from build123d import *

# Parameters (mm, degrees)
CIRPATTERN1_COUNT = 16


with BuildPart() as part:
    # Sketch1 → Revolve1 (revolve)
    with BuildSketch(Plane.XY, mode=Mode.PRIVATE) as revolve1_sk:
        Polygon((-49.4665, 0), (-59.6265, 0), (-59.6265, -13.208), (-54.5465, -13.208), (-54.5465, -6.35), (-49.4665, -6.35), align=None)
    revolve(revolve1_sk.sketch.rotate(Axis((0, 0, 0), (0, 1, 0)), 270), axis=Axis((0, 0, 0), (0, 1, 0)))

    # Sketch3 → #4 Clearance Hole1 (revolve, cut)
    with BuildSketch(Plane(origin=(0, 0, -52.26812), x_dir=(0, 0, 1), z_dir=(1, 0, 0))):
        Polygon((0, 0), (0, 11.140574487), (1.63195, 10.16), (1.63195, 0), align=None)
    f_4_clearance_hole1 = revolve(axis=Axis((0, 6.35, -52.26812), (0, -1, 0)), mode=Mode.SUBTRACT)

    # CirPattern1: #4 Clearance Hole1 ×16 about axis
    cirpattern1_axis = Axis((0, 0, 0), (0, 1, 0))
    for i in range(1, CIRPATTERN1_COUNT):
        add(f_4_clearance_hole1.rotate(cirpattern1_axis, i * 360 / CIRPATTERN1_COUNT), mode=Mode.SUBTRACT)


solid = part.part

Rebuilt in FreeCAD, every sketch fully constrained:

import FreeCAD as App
import Part
import Sketcher

V = App.Vector
Q = App.Units.Quantity

doc = App.newDocument("Part")
body = doc.addObject("PartDesign::Body", "Body")

# Sketch on XY plane
sketch1 = body.newObject("Sketcher::SketchObject", "Sketch")
sketch1.AttachmentSupport = (doc.getObject("XY_Plane"), [""])
sketch1.MapMode = "FlatFace"
sketch1.addGeometry([
    Part.LineSegment(V(-49, 0, 0), V(-60, 0, 0)),  # 0
    Part.LineSegment(V(-60, 0, 0), V(-60, -13, 0)),  # 1
    Part.LineSegment(V(-60, -13, 0), V(-55, -13, 0)),  # 2
    Part.LineSegment(V(-55, -13, 0), V(-55, -6, 0)),  # 3
    Part.LineSegment(V(-55, -6, 0), V(-49, -6, 0)),  # 4
    Part.LineSegment(V(-49, -6, 0), V(-49, 0, 0)),  # 5
], False)
sketch1.addConstraint([
    Sketcher.Constraint("Coincident", 0, 2, 1, 1),
    Sketcher.Constraint("Coincident", 1, 2, 2, 1),
    Sketcher.Constraint("Coincident", 2, 2, 3, 1),
    Sketcher.Constraint("Coincident", 3, 2, 4, 1),
    Sketcher.Constraint("Coincident", 4, 2, 5, 1),
    Sketcher.Constraint("Coincident", 5, 2, 0, 1),
    Sketcher.Constraint("Horizontal", 0),
    Sketcher.Constraint("Vertical", 1),
    Sketcher.Constraint("Horizontal", 2),
    Sketcher.Constraint("Vertical", 3),
    Sketcher.Constraint("Horizontal", 4),
    Sketcher.Constraint("Vertical", 5),
    Sketcher.Constraint("PointOnObject", 0, 2, -1),
    Sketcher.Constraint("Equal", 2, 4),
    Sketcher.Constraint("DistanceX", 0, 2, 0, 1, Q("0.4 in")),
    Sketcher.Constraint("DistanceY", 1, 2, 1, 1, Q("0.52 in")),
    Sketcher.Constraint("DistanceY", 3, 1, 3, 2, Q("0.27 in")),
    Sketcher.Constraint("DistanceX", 0, 2, -1, 1, Q("2.3475 in")),
])
revolution = body.newObject("PartDesign::Revolution", "Revolution")
revolution.Profile = sketch1
revolution.ReferenceAxis = (sketch1, ["V_Axis"])
revolution.Angle = 360

# Sketch on YZ plane
sketch2 = body.newObject("Sketcher::SketchObject", "Sketch001")
sketch2.AttachmentSupport = (doc.getObject("YZ_Plane"), [""])
sketch2.MapMode = "FlatFace"
sketch2.addGeometry([
    Part.LineSegment(V(-11.1, -52.3, 0), V(0, -52.3, 0)),
    Part.LineSegment(V(0, -52.3, 0), V(0, -50.6, 0)),
    Part.LineSegment(V(0, -50.6, 0), V(-10.2, -50.6, 0)),
    Part.LineSegment(V(-10.2, -50.6, 0), V(-11.1, -52.3, 0)),
], False)
sketch2.addGeometry(Part.LineSegment(V(0, -52.3, 0), V(-11.1, -52.3, 0)), True)  # axis
sketch2.addConstraint([
    Sketcher.Constraint("Coincident", 0, 2, 1, 1),
    Sketcher.Constraint("Coincident", 1, 2, 2, 1),
    Sketcher.Constraint("Coincident", 2, 2, 3, 1),
    Sketcher.Constraint("Coincident", 3, 2, 0, 1),
    Sketcher.Constraint("Horizontal", 0),
    Sketcher.Constraint("Vertical", 1),
    Sketcher.Constraint("Horizontal", 2),
    Sketcher.Constraint("Horizontal", 4),
    Sketcher.Constraint("Coincident", 4, 1, 0, 2),
    Sketcher.Constraint("PointOnObject", 0, 2, -2),
    Sketcher.Constraint("Equal", 0, 4),
    Sketcher.Constraint("DistanceX", 2, 2, 2, 1, Q("0.4 in")),
    Sketcher.Constraint("Angle", 3, Q("-121 deg")),
    Sketcher.Constraint("DistanceY", 0, 2, -1, 1, Q("2.0578 in")),
    Sketcher.Constraint("DistanceY", 1, 1, 1, 2, 1.63195),
])
groove = body.newObject("PartDesign::Groove", "Groove")
groove.Profile = sketch2
groove.ReferenceAxis = (sketch2, ["Axis0"])
groove.Angle = 360
doc.recompute()

polarpattern = body.newObject("PartDesign::PolarPattern", "PolarPattern")
polarpattern.Originals = [groove]
polarpattern.Axis = (doc.getObject("Y_Axis"), [""])
polarpattern.Angle = 360
polarpattern.Occurrences = 16
body.Tip = polarpattern

doc.recompute()
